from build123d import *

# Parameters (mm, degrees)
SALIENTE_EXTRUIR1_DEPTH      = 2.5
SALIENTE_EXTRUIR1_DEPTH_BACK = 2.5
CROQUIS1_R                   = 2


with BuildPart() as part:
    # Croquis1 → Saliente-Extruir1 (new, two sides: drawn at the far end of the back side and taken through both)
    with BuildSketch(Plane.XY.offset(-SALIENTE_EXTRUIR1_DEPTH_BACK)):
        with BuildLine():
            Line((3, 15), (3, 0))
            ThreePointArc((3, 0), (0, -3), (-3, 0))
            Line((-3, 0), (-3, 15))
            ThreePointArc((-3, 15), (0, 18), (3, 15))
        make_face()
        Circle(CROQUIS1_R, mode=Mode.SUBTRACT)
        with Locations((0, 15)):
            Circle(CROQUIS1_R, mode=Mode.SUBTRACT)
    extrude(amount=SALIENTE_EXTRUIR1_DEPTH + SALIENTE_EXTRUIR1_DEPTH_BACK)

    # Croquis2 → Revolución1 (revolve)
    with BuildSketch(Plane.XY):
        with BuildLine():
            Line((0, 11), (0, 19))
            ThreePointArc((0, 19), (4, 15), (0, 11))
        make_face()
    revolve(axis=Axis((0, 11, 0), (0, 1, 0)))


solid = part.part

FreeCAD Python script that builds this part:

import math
import FreeCAD as App
import Part
import Sketcher

doc = App.newDocument("Part")
body = doc.addObject("PartDesign::Body", "Body")

# Sketch on XY plane
sketch1 = body.newObject("Sketcher::SketchObject", "Sketch")
sketch1.AttachmentSupport = (doc.getObject("XY_Plane"), [""])
sketch1.MapMode = "FlatFace"
sketch1.addGeometry(Part.LineSegment(App.Vector(3, 0, 0), App.Vector(3, 15, 0)), False)
sketch1.addGeometry(Part.ArcOfCircle(Part.Circle(App.Vector(0, 15, 0), App.Vector(0, 0, 1), 3), math.radians(0), math.radians(180)), False)
sketch1.addGeometry(Part.LineSegment(App.Vector(-3, 15, 0), App.Vector(-3, 0, 0)), False)
sketch1.addGeometry(Part.ArcOfCircle(Part.Circle(App.Vector(0, 0, 0), App.Vector(0, 0, 1), 3), math.radians(180), math.radians(360)), False)
sketch1.addGeometry(Part.Circle(App.Vector(0, 0, 0), App.Vector(0, 0, 1), 2), False)
sketch1.addGeometry(Part.Circle(App.Vector(0, 15, 0), App.Vector(0, 0, 1), 2), False)
sketch1.addConstraint(Sketcher.Constraint("Tangent", 0, 2, 1, 1))
sketch1.addConstraint(Sketcher.Constraint("Tangent", 1, 2, 2, 1))
sketch1.addConstraint(Sketcher.Constraint("Tangent", 2, 2, 3, 1))
sketch1.addConstraint(Sketcher.Constraint("Tangent", 3, 2, 0, 1))
sketch1.addConstraint(Sketcher.Constraint("Vertical", 0))
sketch1.addConstraint(Sketcher.Constraint("Vertical", 2))
sketch1.addConstraint(Sketcher.Constraint("Coincident", 3, 3, -1, 1))
sketch1.addConstraint(Sketcher.Constraint("Coincident", 4, 3, -1, 1))
sketch1.addConstraint(Sketcher.Constraint("Coincident", 5, 3, 1, 3))
sketch1.addConstraint(Sketcher.Constraint("Equal", 4, 5))
sketch1.addConstraint(Sketcher.Constraint("Diameter", 4, 4.0))
sketch1.addConstraint(Sketcher.Constraint("Radius", 1, 3.0))
sketch1.addConstraint(Sketcher.Constraint("DistanceY", 0, 1, 0, 2, 15.0))
pad1 = body.newObject("PartDesign::Pad", "Pad")
pad1.Profile = sketch1
pad1.Type = "TwoLengths"
pad1.Length = 2.5
pad1.Length2 = 2.5

# Sketch on XY plane
sketch2 = body.newObject("Sketcher::SketchObject", "Sketch001")
sketch2.AttachmentSupport = (doc.getObject("XY_Plane"), [""])
sketch2.MapMode = "FlatFace"
sketch2.addGeometry(Part.LineSegment(App.Vector(0, 19, 0), App.Vector(0, 11, 0)), False)
sketch2.addGeometry(Part.ArcOfCircle(Part.Circle(App.Vector(0, 15, 0), App.Vector(0, 0, 1), 4), math.radians(-90), math.radians(90)), False)
sketch2.addConstraint(Sketcher.Constraint("Coincident", 0, 1, 1, 2))
sketch2.addConstraint(Sketcher.Constraint("Coincident", 1, 1, 0, 2))
sketch2.addConstraint(Sketcher.Constraint("Vertical", 0))
sketch2.addConstraint(Sketcher.Constraint("PointOnObject", 1, 3, -2))
sketch2.addConstraint(Sketcher.Constraint("PointOnObject", 0, 1, -2))
sketch2.addConstraint(Sketcher.Constraint("Radius", 1, 4.0))
sketch2.addConstraint(Sketcher.Constraint("DistanceY", -1, 1, 1, 3, 15.0))
revolution = body.newObject("PartDesign::Revolution", "Revolution")
revolution.Profile = sketch2
revolution.ReferenceAxis = (sketch2, ["V_Axis"])
revolution.Angle = 360

doc.recompute()
